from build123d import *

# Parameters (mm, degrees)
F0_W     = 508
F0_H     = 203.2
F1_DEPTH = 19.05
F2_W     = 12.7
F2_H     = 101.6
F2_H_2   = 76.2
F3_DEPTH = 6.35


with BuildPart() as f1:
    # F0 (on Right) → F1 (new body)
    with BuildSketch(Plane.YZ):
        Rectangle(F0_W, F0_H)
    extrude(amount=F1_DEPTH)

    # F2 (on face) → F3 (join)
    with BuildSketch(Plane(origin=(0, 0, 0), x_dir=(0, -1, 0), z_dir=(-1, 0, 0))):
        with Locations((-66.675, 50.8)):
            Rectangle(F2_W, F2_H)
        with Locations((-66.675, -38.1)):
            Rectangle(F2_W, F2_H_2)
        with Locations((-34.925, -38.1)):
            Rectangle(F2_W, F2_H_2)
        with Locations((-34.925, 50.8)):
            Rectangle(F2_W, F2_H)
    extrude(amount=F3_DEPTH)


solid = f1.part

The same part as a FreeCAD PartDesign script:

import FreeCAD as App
import Part
import Sketcher

V = App.Vector
Q = App.Units.Quantity

doc = App.newDocument("Part")
body = doc.addObject("PartDesign::Body", "Body")

sketch1 = body.newObject("Sketcher::SketchObject", "Sketch")
sketch1.AttachmentSupport = (doc.getObject("YZ_Plane"), [""])
sketch1.MapMode = "FlatFace"
sketch1.addGeometry([
    Part.LineSegment(V(-254, 102, 0), V(-254, -102, 0)),
    Part.LineSegment(V(-254, -102, 0), V(254, -102, 0)),
    Part.LineSegment(V(254, -102, 0), V(254, 102, 0)),
    Part.LineSegment(V(254, 102, 0), V(-254, 102, 0)),
], False)
sketch1.addConstraint([
    Sketcher.Constraint("Coincident", 0, 2, 1, 1),
    Sketcher.Constraint("Coincident", 1, 2, 2, 1),
    Sketcher.Constraint("Coincident", 2, 2, 3, 1),
    Sketcher.Constraint("Coincident", 3, 2, 0, 1),
    Sketcher.Constraint("Vertical", 0),
    Sketcher.Constraint("Horizontal", 1),
    Sketcher.Constraint("Vertical", 2),
    Sketcher.Constraint("Horizontal", 3),
    Sketcher.Constraint("Symmetric", 0, 2, 2, 2, -1, 1),
    Sketcher.Constraint("DistanceX", 1, 1, 1, 2, Q("20 in")),
    Sketcher.Constraint("DistanceY", 0, 2, 0, 1, Q("8 in")),
])
pad1 = body.newObject("PartDesign::Pad", "Pad")
pad1.Profile = sketch1
pad1.Length = Q("0.75 in")

sketch2 = body.newObject("Sketcher::SketchObject", "Sketch001")
sketch2.AttachmentSupport = (doc.getObject("YZ_Plane"), [""])
sketch2.MapMode = "FlatFace"
sketch2.addGeometry([
    Part.LineSegment(V(73, 102, 0), V(73, -76, 0)),
    Part.LineSegment(V(73, -76, 0), V(60, -76, 0)),
    Part.LineSegment(V(60, -76, 0), V(60, 102, 0)),
    Part.LineSegment(V(60, 102, 0), V(73, 102, 0)),
    Part.LineSegment(V(41, -76, 0), V(29, -76, 0)),
    Part.LineSegment(V(29, -76, 0), V(29, 102, 0)),
    Part.LineSegment(V(29, 102, 0), V(41, 102, 0)),
    Part.LineSegment(V(41, 102, 0), V(41, -76, 0)),
], False)
sketch2.addConstraint([
    Sketcher.Constraint("Coincident", 0, 2, 1, 1),
    Sketcher.Constraint("Coincident", 1, 2, 2, 1),
    Sketcher.Constraint("Coincident", 2, 2, 3, 1),
    Sketcher.Constraint("Coincident", 3, 2, 0, 1),
    Sketcher.Constraint("Coincident", 4, 2, 5, 1),
    Sketcher.Constraint("Coincident", 5, 2, 6, 1),
    Sketcher.Constraint("Coincident", 6, 2, 7, 1),
    Sketcher.Constraint("Coincident", 7, 2, 4, 1),
    Sketcher.Constraint("Vertical", 0),
    Sketcher.Constraint("Horizontal", 1),
    Sketcher.Constraint("Vertical", 2),
    Sketcher.Constraint("Horizontal", 3),
    Sketcher.Constraint("Horizontal", 4),
    Sketcher.Constraint("Vertical", 5),
    Sketcher.Constraint("Horizontal", 6),
    Sketcher.Constraint("Vertical", 7),
    Sketcher.Constraint("Horizontal", 1, 2, 4, 2),
    Sketcher.Constraint("Horizontal", 3, 2, 5, 2),
    Sketcher.Constraint("Equal", 3, 4),
    Sketcher.Constraint("DistanceY", 0, 2, 0, 1, Q("7 in")),
    Sketcher.Constraint("DistanceX", 1, 2, 1, 1, Q("0.5 in")),
    Sketcher.Constraint("DistanceY", 0, 2, -1, 1, Q("3 in")),
    Sketcher.Constraint("DistanceX", 4, 2, 1, 2, Q("1.25 in")),
    Sketcher.Constraint("DistanceX", -1, 1, 0, 2, Q("2.875 in")),
])
pad2 = body.newObject("PartDesign::Pad", "Pad001")
pad2.Profile = sketch2
pad2.Length = Q("0.25 in")
pad2.Reversed = True

doc.recompute()
